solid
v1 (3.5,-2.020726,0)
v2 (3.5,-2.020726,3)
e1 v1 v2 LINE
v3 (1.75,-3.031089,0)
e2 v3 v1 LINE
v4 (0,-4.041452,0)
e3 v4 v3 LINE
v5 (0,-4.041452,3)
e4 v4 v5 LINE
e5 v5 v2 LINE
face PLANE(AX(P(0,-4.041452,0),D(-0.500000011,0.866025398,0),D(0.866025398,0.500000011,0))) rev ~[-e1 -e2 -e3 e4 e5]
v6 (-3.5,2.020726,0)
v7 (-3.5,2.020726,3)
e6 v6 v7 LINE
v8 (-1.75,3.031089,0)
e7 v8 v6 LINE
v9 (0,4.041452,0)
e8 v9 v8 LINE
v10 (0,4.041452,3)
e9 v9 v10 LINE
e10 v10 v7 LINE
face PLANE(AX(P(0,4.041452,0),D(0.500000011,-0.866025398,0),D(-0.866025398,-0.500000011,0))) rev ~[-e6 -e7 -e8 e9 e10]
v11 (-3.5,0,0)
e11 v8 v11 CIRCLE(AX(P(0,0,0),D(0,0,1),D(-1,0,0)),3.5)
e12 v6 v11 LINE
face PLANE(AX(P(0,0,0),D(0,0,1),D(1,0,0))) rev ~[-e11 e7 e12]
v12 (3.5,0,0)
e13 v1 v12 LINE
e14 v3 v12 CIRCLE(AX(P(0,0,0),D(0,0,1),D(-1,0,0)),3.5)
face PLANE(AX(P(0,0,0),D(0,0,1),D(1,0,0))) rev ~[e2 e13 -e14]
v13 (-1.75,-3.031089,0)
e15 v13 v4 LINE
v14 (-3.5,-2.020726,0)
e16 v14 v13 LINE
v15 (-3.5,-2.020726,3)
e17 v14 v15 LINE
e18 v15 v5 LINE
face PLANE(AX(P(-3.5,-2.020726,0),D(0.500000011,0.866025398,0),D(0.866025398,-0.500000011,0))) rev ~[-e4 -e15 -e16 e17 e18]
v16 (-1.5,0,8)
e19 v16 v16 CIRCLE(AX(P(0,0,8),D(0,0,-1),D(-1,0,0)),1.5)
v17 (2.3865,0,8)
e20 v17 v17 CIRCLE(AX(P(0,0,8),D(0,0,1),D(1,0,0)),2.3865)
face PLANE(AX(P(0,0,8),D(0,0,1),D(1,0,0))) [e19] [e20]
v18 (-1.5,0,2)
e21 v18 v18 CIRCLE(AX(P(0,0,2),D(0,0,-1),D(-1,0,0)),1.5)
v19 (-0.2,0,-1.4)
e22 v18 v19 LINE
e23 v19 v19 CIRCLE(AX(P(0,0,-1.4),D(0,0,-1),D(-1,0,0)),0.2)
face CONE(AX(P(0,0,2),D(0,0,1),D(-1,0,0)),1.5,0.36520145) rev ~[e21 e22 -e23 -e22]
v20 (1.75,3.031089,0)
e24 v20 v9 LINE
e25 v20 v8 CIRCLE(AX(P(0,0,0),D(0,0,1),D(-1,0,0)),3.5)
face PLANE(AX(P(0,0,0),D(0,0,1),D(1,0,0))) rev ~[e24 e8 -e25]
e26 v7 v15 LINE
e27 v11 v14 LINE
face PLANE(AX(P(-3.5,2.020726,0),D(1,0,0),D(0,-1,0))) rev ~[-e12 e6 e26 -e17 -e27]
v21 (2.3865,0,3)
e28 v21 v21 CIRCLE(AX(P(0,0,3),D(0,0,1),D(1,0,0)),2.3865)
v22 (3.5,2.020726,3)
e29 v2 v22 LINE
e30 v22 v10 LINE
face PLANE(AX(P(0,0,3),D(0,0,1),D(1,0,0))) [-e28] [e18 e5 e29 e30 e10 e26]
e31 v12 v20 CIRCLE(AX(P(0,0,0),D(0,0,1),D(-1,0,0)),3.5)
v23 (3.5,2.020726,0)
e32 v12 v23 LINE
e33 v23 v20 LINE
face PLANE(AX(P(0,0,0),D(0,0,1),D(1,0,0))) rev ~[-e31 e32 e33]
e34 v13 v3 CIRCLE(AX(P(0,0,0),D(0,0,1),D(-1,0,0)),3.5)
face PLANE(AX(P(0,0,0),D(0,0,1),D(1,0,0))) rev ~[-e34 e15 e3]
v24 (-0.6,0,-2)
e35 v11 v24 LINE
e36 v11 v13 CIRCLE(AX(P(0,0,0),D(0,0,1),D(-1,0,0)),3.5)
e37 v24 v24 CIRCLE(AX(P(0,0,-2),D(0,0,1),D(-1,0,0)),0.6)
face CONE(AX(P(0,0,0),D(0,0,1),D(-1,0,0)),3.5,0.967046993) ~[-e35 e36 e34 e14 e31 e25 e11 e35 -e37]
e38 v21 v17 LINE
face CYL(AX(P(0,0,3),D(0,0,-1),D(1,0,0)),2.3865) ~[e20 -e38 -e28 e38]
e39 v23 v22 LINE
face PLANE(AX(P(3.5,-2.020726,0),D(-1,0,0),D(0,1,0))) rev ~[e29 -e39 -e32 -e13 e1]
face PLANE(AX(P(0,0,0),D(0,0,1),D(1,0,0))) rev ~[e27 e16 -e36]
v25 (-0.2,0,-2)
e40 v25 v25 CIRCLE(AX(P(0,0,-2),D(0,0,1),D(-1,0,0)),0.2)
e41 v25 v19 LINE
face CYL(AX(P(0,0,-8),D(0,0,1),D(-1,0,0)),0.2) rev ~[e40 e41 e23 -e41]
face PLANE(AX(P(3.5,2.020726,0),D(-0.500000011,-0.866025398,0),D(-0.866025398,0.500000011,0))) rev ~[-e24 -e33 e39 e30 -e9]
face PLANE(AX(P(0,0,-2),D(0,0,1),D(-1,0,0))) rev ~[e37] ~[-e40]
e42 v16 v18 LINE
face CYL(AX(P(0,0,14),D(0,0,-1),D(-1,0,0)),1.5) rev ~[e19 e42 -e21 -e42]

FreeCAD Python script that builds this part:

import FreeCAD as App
import Part
import Sketcher
from FreeCAD import Vector
Q = App.Units.Quantity


def add_polygon(sketch, points):
    """Adds a closed chain of lines whose ends are joined by coincident constraints."""
    first, n = sketch.GeometryCount, len(points)
    for a, b in zip(points, points[1:] + points[:1]):
        sketch.addGeometry(Part.LineSegment(App.Vector(*a, 0), App.Vector(*b, 0)), False)
    for i in range(n):
        sketch.addConstraint(Sketcher.Constraint("Coincident", first + i, 2, first + (i + 1) % n, 1))

doc = App.newDocument("Part")
body = doc.addObject("PartDesign::Body", "Body")

# Sketch on XY plane
sketch1 = body.newObject("Sketcher::SketchObject", "Sketch")
sketch1.AttachmentSupport = (doc.getObject("XY_Plane"), [""])
sketch1.MapMode = "FlatFace"
add_polygon(sketch1, [(3.5, -2), (3.5, 2), (0, 4), (-3.5, 2), (-3.5, -2), (0, -4)])  # lines 0-5
sketch1.addConstraint(Sketcher.Constraint("Vertical", 0))
sketch1.addConstraint(Sketcher.Constraint("Vertical", 3))
sketch1.addConstraint(Sketcher.Constraint("Symmetric", 0, 2, 3, 2, -1, 1))
sketch1.addConstraint(Sketcher.Constraint("Symmetric", 1, 2, 4, 2, -1, 1))
sketch1.addConstraint(Sketcher.Constraint("PointOnObject", 1, 2, -2))
sketch1.addConstraint(Sketcher.Constraint("Parallel", 2, 5))
sketch1.addConstraint(Sketcher.Constraint("Horizontal", 0, 2, 2, 2))
sketch1.addConstraint(Sketcher.Constraint("Angle", 1, Q("149.999999 deg")))
sketch1.addConstraint(Sketcher.Constraint("DistanceX", 2, 2, 0, 2, Q("7 mm")))
sketch1.addConstraint(Sketcher.Constraint("DistanceY", 0, 1, 0, 2, Q("4.041452 mm")))
pad1 = body.newObject("PartDesign::Pad", "Pad")
pad1.Profile = sketch1
pad1.Length = 3

# Sketch on XY plane
sketch2 = body.newObject("Sketcher::SketchObject", "Sketch001")
sketch2.AttachmentSupport = (doc.getObject("XY_Plane"), [""])
sketch2.MapMode = "FlatFace"
sketch2.AttachmentOffset = App.Placement(Vector(0, 0, 3), App.Rotation())
sketch2.addGeometry(Part.Circle(Vector(0, 0, 0), Vector(0, 0, 1), 2.4), False)
sketch2.addConstraint(Sketcher.Constraint("Coincident", 0, 3, -1, 1))
sketch2.addConstraint(Sketcher.Constraint("Diameter", 0, Q("4.773 mm")))
pad2 = body.newObject("PartDesign::Pad", "Pad001")
pad2.Profile = sketch2
pad2.Length = 5

# Sketch on XZ plane
sketch3 = body.newObject("Sketcher::SketchObject", "Sketch002")
sketch3.AttachmentSupport = (doc.getObject("XZ_Plane"), [""])
sketch3.MapMode = "FlatFace"
add_polygon(sketch3, [(0, -2), (0, 0), (-3.5, 0), (-0.6, -2)])  # lines 0-3
sketch3.addConstraint(Sketcher.Constraint("Vertical", 0))
sketch3.addConstraint(Sketcher.Constraint("Horizontal", 1))
sketch3.addConstraint(Sketcher.Constraint("Horizontal", 3))
sketch3.addConstraint(Sketcher.Constraint("Coincident", 0, 2, -1, 1))
sketch3.addConstraint(Sketcher.Constraint("DistanceY", 0, 1, 0, 2, Q("2 mm")))
sketch3.addConstraint(Sketcher.Constraint("DistanceX", 1, 2, 1, 1, Q("3.5 mm")))
sketch3.addConstraint(Sketcher.Constraint("DistanceX", 3, 1, 3, 2, Q("0.6 mm")))
revolution = body.newObject("PartDesign::Revolution", "Revolution")
revolution.Profile = sketch3
revolution.ReferenceAxis = (sketch3, ["V_Axis"])
revolution.Angle = 360

# Sketch on XY plane
sketch4 = body.newObject("Sketcher::SketchObject", "Sketch003")
sketch4.AttachmentSupport = (doc.getObject("XY_Plane"), [""])
sketch4.MapMode = "FlatFace"
sketch4.AttachmentOffset = App.Placement(Vector(0, 0, 8), App.Rotation())
sketch4.addGeometry(Part.Circle(Vector(0, 0, 0), Vector(0, 0, 1), 1.5), False)
sketch4.addConstraint(Sketcher.Constraint("Coincident", 0, 3, -1, 1))
sketch4.addConstraint(Sketcher.Constraint("Diameter", 0, Q("3 mm")))
doc.recompute()
hole = body.newObject("PartDesign::Hole", "Hole")
hole.Profile = sketch4
hole.ThreadType = "None"
hole.Diameter = 3
hole.DepthType = "Dimension"
hole.Depth = 6
hole.DrillPoint = "Flat"

# Sketch on XY plane
sketch5 = body.newObject("Sketcher::SketchObject", "Sketch004")
sketch5.AttachmentSupport = (doc.getObject("XY_Plane"), [""])
sketch5.MapMode = "FlatFace"
sketch5.AttachmentOffset = App.Placement(Vector(0, 0, -2), App.Rotation())
sketch5.addGeometry(Part.Circle(Vector(0, 0, 0), Vector(0, 0, 1), 0.2), False)
sketch5.addConstraint(Sketcher.Constraint("Coincident", 0, 3, -1, 1))
sketch5.addConstraint(Sketcher.Constraint("Diameter", 0, Q("0.4 mm")))
doc.recompute()
hole2 = body.newObject("PartDesign::Hole", "Hole001")
hole2.Profile = sketch5
hole2.ThreadType = "None"
hole2.Diameter = 0.4
hole2.DepthType = "Dimension"
hole2.Depth = 6
hole2.DrillPoint = "Flat"
hole2.Reversed = True

# Sketch on XZ plane
sketch6 = body.newObject("Sketcher::SketchObject", "Sketch005")
sketch6.AttachmentSupport = (doc.getObject("XZ_Plane"), [""])
sketch6.MapMode = "FlatFace"
add_polygon(sketch6, [(0, 2), (-1.5, 2), (-0.2, -1.4), (0, -1.4)])  # lines 0-3
sketch6.addConstraint(Sketcher.Constraint("Horizontal", 0))
sketch6.addConstraint(Sketcher.Constraint("Horizontal", 2))
sketch6.addConstraint(Sketcher.Constraint("Vertical", 3))
sketch6.addConstraint(Sketcher.Constraint("PointOnObject", 2, 2, -2))
sketch6.addConstraint(Sketcher.Constraint("DistanceX", 0, 2, 0, 1, Q("1.5 mm")))
sketch6.addConstraint(Sketcher.Constraint("DistanceX", 2, 1, 2, 2, Q("0.2 mm")))
sketch6.addConstraint(Sketcher.Constraint("DistanceY", 3, 1, 3, 2, Q("3.4 mm")))
sketch6.addConstraint(Sketcher.Constraint("DistanceY", -1, 1, 0, 2, Q("2 mm")))
groove = body.newObject("PartDesign::Groove", "Groove")
groove.Profile = sketch6
groove.ReferenceAxis = (sketch6, ["V_Axis"])
groove.Angle = 360

doc.recompute()
